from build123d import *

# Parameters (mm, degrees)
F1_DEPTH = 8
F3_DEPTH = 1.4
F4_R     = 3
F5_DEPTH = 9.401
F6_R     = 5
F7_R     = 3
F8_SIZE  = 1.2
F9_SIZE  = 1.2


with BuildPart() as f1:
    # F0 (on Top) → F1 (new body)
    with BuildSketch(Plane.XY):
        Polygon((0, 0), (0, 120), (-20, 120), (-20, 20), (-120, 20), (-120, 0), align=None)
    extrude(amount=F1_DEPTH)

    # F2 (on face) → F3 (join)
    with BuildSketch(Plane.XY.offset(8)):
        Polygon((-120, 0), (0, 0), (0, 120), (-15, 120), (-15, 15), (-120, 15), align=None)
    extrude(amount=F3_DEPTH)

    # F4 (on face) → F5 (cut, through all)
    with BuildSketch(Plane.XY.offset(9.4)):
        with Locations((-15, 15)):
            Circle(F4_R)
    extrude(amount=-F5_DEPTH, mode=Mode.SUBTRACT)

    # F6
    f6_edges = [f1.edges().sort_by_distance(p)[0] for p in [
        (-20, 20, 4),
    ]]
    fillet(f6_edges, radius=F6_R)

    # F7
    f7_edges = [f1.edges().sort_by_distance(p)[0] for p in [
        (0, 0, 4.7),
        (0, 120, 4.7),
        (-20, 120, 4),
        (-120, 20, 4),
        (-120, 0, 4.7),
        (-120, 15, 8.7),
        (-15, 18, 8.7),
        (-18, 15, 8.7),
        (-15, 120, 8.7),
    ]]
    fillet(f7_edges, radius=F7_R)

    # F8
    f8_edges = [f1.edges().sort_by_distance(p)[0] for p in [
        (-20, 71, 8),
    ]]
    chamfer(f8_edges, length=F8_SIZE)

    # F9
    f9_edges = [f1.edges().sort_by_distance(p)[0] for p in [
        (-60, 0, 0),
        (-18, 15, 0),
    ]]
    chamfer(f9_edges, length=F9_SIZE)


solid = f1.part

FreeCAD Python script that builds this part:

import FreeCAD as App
import Part
import Sketcher
from FreeCAD import Vector


def edges_at(feature, points):
    """Names of the edges that pass closest to the given points."""
    edges = feature.Shape.Edges
    near = lambda p: min(range(len(edges)), key=lambda i: edges[i].distToShape(Part.Vertex(*p))[0])
    return sorted({f"Edge{near(p) + 1}" for p in points})


def add_polygon(sketch, points):
    """Adds a closed chain of lines whose ends are joined by coincident constraints."""
    first, n = sketch.GeometryCount, len(points)
    for a, b in zip(points, points[1:] + points[:1]):
        sketch.addGeometry(Part.LineSegment(App.Vector(*a, 0), App.Vector(*b, 0)), False)
    for i in range(n):
        sketch.addConstraint(Sketcher.Constraint("Coincident", first + i, 2, first + (i + 1) % n, 1))

doc = App.newDocument("Part")
body = doc.addObject("PartDesign::Body", "Body")

sketch1 = body.newObject("Sketcher::SketchObject", "Sketch")
sketch1.AttachmentSupport = (doc.getObject("XY_Plane"), [""])
sketch1.MapMode = "FlatFace"
add_polygon(sketch1, [(0, 0), (0, 120), (-20, 120), (-20, 20), (-120, 20), (-120, 0)])
sketch1.addConstraint(Sketcher.Constraint("Vertical", 0))
sketch1.addConstraint(Sketcher.Constraint("Horizontal", 1))
sketch1.addConstraint(Sketcher.Constraint("Vertical", 2))
sketch1.addConstraint(Sketcher.Constraint("Horizontal", 3))
sketch1.addConstraint(Sketcher.Constraint("Vertical", 4))
sketch1.addConstraint(Sketcher.Constraint("Horizontal", 5))
sketch1.addConstraint(Sketcher.Constraint("Coincident", 5, 2, -1, 1))
sketch1.addConstraint(Sketcher.Constraint("Equal", 5, 0))
sketch1.addConstraint(Sketcher.Constraint("Equal", 3, 2))
sketch1.addConstraint(Sketcher.Constraint("DistanceX", 1, 2, 1, 1, 20.0))
sketch1.addConstraint(Sketcher.Constraint("DistanceX", 3, 2, 3, 1, 100.0))
pad1 = body.newObject("PartDesign::Pad", "Pad")
pad1.Profile = sketch1
pad1.Length = 8

sketch2 = body.newObject("Sketcher::SketchObject", "Sketch001")
sketch2.AttachmentSupport = (doc.getObject("XY_Plane"), [""])
sketch2.MapMode = "FlatFace"
sketch2.AttachmentOffset = App.Placement(Vector(0, 0, 8), App.Rotation())
add_polygon(sketch2, [(-120, 0), (0, 0), (0, 120), (-15, 120), (-15, 15), (-120, 15)])
sketch2.addConstraint(Sketcher.Constraint("Horizontal", 0))
sketch2.addConstraint(Sketcher.Constraint("Vertical", 1))
sketch2.addConstraint(Sketcher.Constraint("Horizontal", 2))
sketch2.addConstraint(Sketcher.Constraint("Vertical", 3))
sketch2.addConstraint(Sketcher.Constraint("Horizontal", 4))
sketch2.addConstraint(Sketcher.Constraint("Vertical", 5))
sketch2.addConstraint(Sketcher.Constraint("Coincident", 0, 2, -1, 1))
sketch2.addConstraint(Sketcher.Constraint("Equal", 0, 1))
sketch2.addConstraint(Sketcher.Constraint("Equal", 4, 3))
sketch2.addConstraint(Sketcher.Constraint("DistanceX", 0, 1, 0, 2, 120.0))
sketch2.addConstraint(Sketcher.Constraint("DistanceX", 2, 2, 2, 1, 15.0))
pad2 = body.newObject("PartDesign::Pad", "Pad001")
pad2.Profile = sketch2
pad2.Length = 1.4

sketch3 = body.newObject("Sketcher::SketchObject", "Sketch002")
sketch3.AttachmentSupport = (doc.getObject("XY_Plane"), [""])
sketch3.MapMode = "FlatFace"
sketch3.AttachmentOffset = App.Placement(Vector(0, 0, 9.4), App.Rotation())
sketch3.addGeometry(Part.Circle(Vector(-15, 15, 0), Vector(0, 0, 1), 3), False)
sketch3.addConstraint(Sketcher.Constraint("Diameter", 0, 6.0))
sketch3.addConstraint(Sketcher.Constraint("DistanceX", 0, 3, -1, 1, 15.0))
sketch3.addConstraint(Sketcher.Constraint("DistanceY", -1, 1, 0, 3, 15.0))
pocket1 = body.newObject("PartDesign::Pocket", "Pocket")
pocket1.Profile = sketch3
pocket1.Type = "ThroughAll"
doc.recompute()

fillet = body.newObject("PartDesign::Fillet", "Fillet")
fillet.Base = (pocket1, edges_at(pocket1, [(-20, 20, 4)]))
fillet.Radius = 5
doc.recompute()

fillet2 = body.newObject("PartDesign::Fillet", "Fillet001")
fillet2.Base = (fillet, edges_at(fillet, [
    (0, 0, 4.7),
    (0, 120, 4.7),
    (-20, 120, 4),
    (-120, 20, 4),
    (-120, 0, 4.7),
    (-120, 15, 8.7),
    (-15, 18, 8.7),
    (-18, 15, 8.7),
    (-15, 120, 8.7),
]))
fillet2.Radius = 3
doc.recompute()

chamfer = body.newObject("PartDesign::Chamfer", "Chamfer")
chamfer.Base = (fillet2, edges_at(fillet2, [(-20, 71, 8)]))
chamfer.Size = 1.2
doc.recompute()

chamfer2 = body.newObject("PartDesign::Chamfer", "Chamfer001")
chamfer2.Base = (chamfer, edges_at(chamfer, [(-60, 0, 0), (-18, 15, 0)]))
chamfer2.Size = 1.2

doc.recompute()
